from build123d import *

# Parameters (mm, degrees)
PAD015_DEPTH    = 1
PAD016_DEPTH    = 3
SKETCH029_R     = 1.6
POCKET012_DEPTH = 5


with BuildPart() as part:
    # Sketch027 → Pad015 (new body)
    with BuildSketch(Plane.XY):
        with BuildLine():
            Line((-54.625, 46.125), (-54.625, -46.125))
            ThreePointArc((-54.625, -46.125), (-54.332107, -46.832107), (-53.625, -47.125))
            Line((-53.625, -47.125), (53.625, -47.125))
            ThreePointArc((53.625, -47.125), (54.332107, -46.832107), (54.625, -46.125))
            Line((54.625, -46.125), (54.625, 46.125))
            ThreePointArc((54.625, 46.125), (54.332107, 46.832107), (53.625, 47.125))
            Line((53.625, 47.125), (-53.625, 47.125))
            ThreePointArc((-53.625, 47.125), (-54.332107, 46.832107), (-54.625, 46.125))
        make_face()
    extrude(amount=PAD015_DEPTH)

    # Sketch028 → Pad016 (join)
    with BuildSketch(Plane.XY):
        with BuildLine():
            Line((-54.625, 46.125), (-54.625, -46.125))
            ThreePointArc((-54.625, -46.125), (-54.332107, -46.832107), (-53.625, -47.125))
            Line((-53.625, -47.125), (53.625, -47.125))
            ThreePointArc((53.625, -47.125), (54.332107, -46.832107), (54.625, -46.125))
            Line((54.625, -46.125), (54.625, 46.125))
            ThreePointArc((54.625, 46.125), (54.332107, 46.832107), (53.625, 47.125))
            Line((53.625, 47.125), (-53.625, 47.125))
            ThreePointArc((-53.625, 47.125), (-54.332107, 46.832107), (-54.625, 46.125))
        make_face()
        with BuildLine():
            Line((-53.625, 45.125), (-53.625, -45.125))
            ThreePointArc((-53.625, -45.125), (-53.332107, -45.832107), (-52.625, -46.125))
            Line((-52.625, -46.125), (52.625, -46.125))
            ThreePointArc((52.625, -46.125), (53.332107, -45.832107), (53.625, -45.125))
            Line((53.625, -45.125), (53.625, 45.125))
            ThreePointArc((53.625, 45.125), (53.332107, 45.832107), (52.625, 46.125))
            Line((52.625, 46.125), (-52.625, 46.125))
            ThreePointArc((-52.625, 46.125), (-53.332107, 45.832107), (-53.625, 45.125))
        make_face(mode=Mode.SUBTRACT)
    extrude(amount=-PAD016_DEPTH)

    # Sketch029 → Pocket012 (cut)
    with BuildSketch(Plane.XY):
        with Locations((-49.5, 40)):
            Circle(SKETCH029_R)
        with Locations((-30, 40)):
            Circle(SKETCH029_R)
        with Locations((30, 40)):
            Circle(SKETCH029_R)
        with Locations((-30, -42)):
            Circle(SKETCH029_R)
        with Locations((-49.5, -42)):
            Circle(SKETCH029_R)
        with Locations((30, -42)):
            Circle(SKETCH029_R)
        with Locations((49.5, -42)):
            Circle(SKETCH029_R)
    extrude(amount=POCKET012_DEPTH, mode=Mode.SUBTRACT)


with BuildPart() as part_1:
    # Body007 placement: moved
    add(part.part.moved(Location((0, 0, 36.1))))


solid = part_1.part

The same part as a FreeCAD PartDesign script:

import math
import FreeCAD as App
import Part
import Sketcher

doc = App.newDocument("Part")
body = doc.addObject("PartDesign::Body", "Body")

sketch1 = body.newObject("Sketcher::SketchObject", "Sketch")
sketch1.AttachmentSupport = (doc.getObject("XY_Plane"), [""])
sketch1.MapMode = "FlatFace"
sketch1.addGeometry([
    Part.LineSegment(App.Vector(-54.6, 46.1, 0), App.Vector(-54.6, -46.1, 0)),
    Part.ArcOfCircle(Part.Circle(App.Vector(-53.6, -46.1, 0), App.Vector(0, 0, 1), 1), math.radians(180), math.radians(270)),
    Part.LineSegment(App.Vector(-53.6, -47.1, 0), App.Vector(53.6, -47.1, 0)),
    Part.ArcOfCircle(Part.Circle(App.Vector(53.6, -46.1, 0), App.Vector(0, 0, 1), 1), math.radians(-90), math.radians(0)),
    Part.LineSegment(App.Vector(54.6, -46.1, 0), App.Vector(54.6, 46.1, 0)),
    Part.ArcOfCircle(Part.Circle(App.Vector(53.6, 46.1, 0), App.Vector(0, 0, 1), 1), math.radians(0), math.radians(90)),
    Part.LineSegment(App.Vector(53.6, 47.1, 0), App.Vector(-53.6, 47.1, 0)),
    Part.ArcOfCircle(Part.Circle(App.Vector(-53.6, 46.1, 0), App.Vector(0, 0, 1), 1), math.radians(90), math.radians(180)),
], False)
sketch1.addConstraint([
    Sketcher.Constraint("Tangent", 0, 2, 1, 1),
    Sketcher.Constraint("Tangent", 1, 2, 2, 1),
    Sketcher.Constraint("Tangent", 2, 2, 3, 1),
    Sketcher.Constraint("Tangent", 3, 2, 4, 1),
    Sketcher.Constraint("Tangent", 4, 2, 5, 1),
    Sketcher.Constraint("Tangent", 5, 2, 6, 1),
    Sketcher.Constraint("Tangent", 6, 2, 7, 1),
    Sketcher.Constraint("Tangent", 7, 2, 0, 1),
    Sketcher.Constraint("Vertical", 0),
    Sketcher.Constraint("Horizontal", 2),
    Sketcher.Constraint("Vertical", 4),
    Sketcher.Constraint("Horizontal", 6),
    Sketcher.Constraint("Equal", 1, 3),
    Sketcher.Constraint("Equal", 3, 5),
    Sketcher.Constraint("Equal", 5, 7),
    Sketcher.Constraint("Symmetric", 1, 3, 5, 3, -1, 1),
    Sketcher.Constraint("Radius", 1, 0.999999),
    Sketcher.Constraint("DistanceX", 2, 1, 2, 2, 107.25),
    Sketcher.Constraint("DistanceY", 0, 2, 0, 1, 92.25),
])
pad1 = body.newObject("PartDesign::Pad", "Pad")
pad1.Profile = sketch1
pad1.Length = 1

sketch2 = body.newObject("Sketcher::SketchObject", "Sketch001")
sketch2.AttachmentSupport = (doc.getObject("XY_Plane"), [""])
sketch2.MapMode = "FlatFace"
sketch2.addGeometry([
    Part.LineSegment(App.Vector(-54.6, 46.1, 0), App.Vector(-54.6, -46.1, 0)),
    Part.ArcOfCircle(Part.Circle(App.Vector(-53.6, -46.1, 0), App.Vector(0, 0, 1), 1), math.radians(180), math.radians(270)),
    Part.LineSegment(App.Vector(-53.6, -47.1, 0), App.Vector(53.6, -47.1, 0)),
    Part.ArcOfCircle(Part.Circle(App.Vector(53.6, -46.1, 0), App.Vector(0, 0, 1), 1), math.radians(-90), math.radians(0)),
    Part.LineSegment(App.Vector(54.6, -46.1, 0), App.Vector(54.6, 46.1, 0)),
    Part.ArcOfCircle(Part.Circle(App.Vector(53.6, 46.1, 0), App.Vector(0, 0, 1), 1), math.radians(0), math.radians(90)),
    Part.LineSegment(App.Vector(53.6, 47.1, 0), App.Vector(-53.6, 47.1, 0)),
    Part.ArcOfCircle(Part.Circle(App.Vector(-53.6, 46.1, 0), App.Vector(0, 0, 1), 1), math.radians(90), math.radians(180)),
    Part.LineSegment(App.Vector(-53.6, -45.1, 0), App.Vector(-53.6, 45.1, 0)),
    Part.ArcOfCircle(Part.Circle(App.Vector(-52.6, 45.1, 0), App.Vector(0, 0, 1), 1), math.radians(90), math.radians(180)),
    Part.LineSegment(App.Vector(-52.6, 46.1, 0), App.Vector(52.6, 46.1, 0)),
    Part.ArcOfCircle(Part.Circle(App.Vector(52.6, 45.1, 0), App.Vector(0, 0, 1), 1), math.radians(0), math.radians(90)),
    Part.LineSegment(App.Vector(53.6, 45.1, 0), App.Vector(53.6, -45.1, 0)),
    Part.ArcOfCircle(Part.Circle(App.Vector(52.6, -45.1, 0), App.Vector(0, 0, 1), 1), math.radians(-90), math.radians(0)),
    Part.LineSegment(App.Vector(52.6, -46.1, 0), App.Vector(-52.6, -46.1, 0)),
    Part.ArcOfCircle(Part.Circle(App.Vector(-52.6, -45.1, 0), App.Vector(0, 0, 1), 1), math.radians(180), math.radians(270)),
], False)
sketch2.addConstraint([
    Sketcher.Constraint("Tangent", 0, 2, 1, 1),
    Sketcher.Constraint("Tangent", 1, 2, 2, 1),
    Sketcher.Constraint("Tangent", 2, 2, 3, 1),
    Sketcher.Constraint("Tangent", 3, 2, 4, 1),
    Sketcher.Constraint("Tangent", 4, 2, 5, 1),
    Sketcher.Constraint("Tangent", 5, 2, 6, 1),
    Sketcher.Constraint("Tangent", 6, 2, 7, 1),
    Sketcher.Constraint("Tangent", 7, 2, 0, 1),
    Sketcher.Constraint("Tangent", 8, 2, 9, 2),
    Sketcher.Constraint("Tangent", 9, 1, 10, 1),
    Sketcher.Constraint("Tangent", 10, 2, 11, 2),
    Sketcher.Constraint("Tangent", 11, 1, 12, 1),
    Sketcher.Constraint("Tangent", 12, 2, 13, 2),
    Sketcher.Constraint("Tangent", 13, 1, 14, 1),
    Sketcher.Constraint("Tangent", 14, 2, 15, 2),
    Sketcher.Constraint("Tangent", 15, 1, 8, 1),
    Sketcher.Constraint("Vertical", 0),
    Sketcher.Constraint("Horizontal", 2),
    Sketcher.Constraint("Vertical", 4),
    Sketcher.Constraint("Horizontal", 6),
    Sketcher.Constraint("Vertical", 8),
    Sketcher.Constraint("Horizontal", 10),
    Sketcher.Constraint("Vertical", 12),
    Sketcher.Constraint("Horizontal", 14),
    Sketcher.Constraint("Equal", 1, 3),
    Sketcher.Constraint("Equal", 3, 5),
    Sketcher.Constraint("Equal", 5, 7),
    Sketcher.Constraint("Equal", 7, 9),
    Sketcher.Constraint("Equal", 9, 11),
    Sketcher.Constraint("Equal", 11, 13),
    Sketcher.Constraint("Equal", 13, 15),
    Sketcher.Constraint("Symmetric", 1, 3, 5, 3, -1, 1),
    Sketcher.Constraint("Symmetric", 9, 3, 13, 3, -1, 1),
    Sketcher.Constraint("Horizontal", 7, 2, 9, 1),
    Sketcher.Constraint("Vertical", 6, 2, 8, 2),
    Sketcher.Constraint("Radius", 1, 0.999999),
    Sketcher.Constraint("DistanceX", 2, 1, 2, 2, 107.25),
    Sketcher.Constraint("DistanceY", 0, 2, 0, 1, 92.25),
])
pad2 = body.newObject("PartDesign::Pad", "Pad001")
pad2.Profile = sketch2
pad2.Length = 3
pad2.Reversed = True

sketch3 = body.newObject("Sketcher::SketchObject", "Sketch002")
sketch3.AttachmentSupport = (doc.getObject("XY_Plane"), [""])
sketch3.MapMode = "FlatFace"
sketch3.addGeometry([
    Part.Circle(App.Vector(-49.5, 40, 0), App.Vector(0, 0, 1), 1.6),
    Part.Circle(App.Vector(-30, 40, 0), App.Vector(0, 0, 1), 1.6),
    Part.Circle(App.Vector(30, 40, 0), App.Vector(0, 0, 1), 1.6),
    Part.Circle(App.Vector(-30, -42, 0), App.Vector(0, 0, 1), 1.6),
    Part.Circle(App.Vector(-49.5, -42, 0), App.Vector(0, 0, 1), 1.6),
    Part.Circle(App.Vector(30, -42, 0), App.Vector(0, 0, 1), 1.6),
    Part.Circle(App.Vector(49.5, -42, 0), App.Vector(0, 0, 1), 1.6),
], False)
sketch3.addConstraint([
    Sketcher.Constraint("Equal", 0, 1),
    Sketcher.Constraint("Equal", 1, 2),
    Sketcher.Constraint("Equal", 2, 3),
    Sketcher.Constraint("Equal", 3, 4),
    Sketcher.Constraint("Equal", 4, 5),
    Sketcher.Constraint("Equal", 5, 6),
    Sketcher.Constraint("Symmetric", 1, 3, 2, 3, -2),
    Sketcher.Constraint("Symmetric", 3, 3, 5, 3, -2),
    Sketcher.Constraint("Symmetric", 4, 3, 6, 3, -2),
    Sketcher.Constraint("Horizontal", 0, 3, 1, 3),
    Sketcher.Constraint("Horizontal", 3, 3, 4, 3),
    Sketcher.Constraint("Vertical", 1, 3, 3, 3),
    Sketcher.Constraint("Vertical", 0, 3, 4, 3),
    Sketcher.Constraint("Diameter", 0, 3.2),
    Sketcher.Constraint("DistanceY", -1, 1, 0, 3, 40.0),
    Sketcher.Constraint("DistanceX", 1, 3, -1, 1, 30.0),
    Sketcher.Constraint("DistanceY", 3, 3, -1, 1, 42.0),
    Sketcher.Constraint("DistanceX", 4, 3, 6, 3, 99.0),
])
pocket1 = body.newObject("PartDesign::Pocket", "Pocket")
pocket1.Profile = sketch3
pocket1.Length = 5
pocket1.Reversed = True
body2 = doc.addObject("PartDesign::Body", "Body001")
doc.recompute()

body.Placement = App.Placement(App.Vector(0, 0, 36.1), App.Rotation(App.Vector(0, 0, 1), 0))
boolean = body2.newObject("PartDesign::Boolean", "Boolean")
boolean.Type = "Fuse"
boolean.addObjects([body])

doc.recompute()
